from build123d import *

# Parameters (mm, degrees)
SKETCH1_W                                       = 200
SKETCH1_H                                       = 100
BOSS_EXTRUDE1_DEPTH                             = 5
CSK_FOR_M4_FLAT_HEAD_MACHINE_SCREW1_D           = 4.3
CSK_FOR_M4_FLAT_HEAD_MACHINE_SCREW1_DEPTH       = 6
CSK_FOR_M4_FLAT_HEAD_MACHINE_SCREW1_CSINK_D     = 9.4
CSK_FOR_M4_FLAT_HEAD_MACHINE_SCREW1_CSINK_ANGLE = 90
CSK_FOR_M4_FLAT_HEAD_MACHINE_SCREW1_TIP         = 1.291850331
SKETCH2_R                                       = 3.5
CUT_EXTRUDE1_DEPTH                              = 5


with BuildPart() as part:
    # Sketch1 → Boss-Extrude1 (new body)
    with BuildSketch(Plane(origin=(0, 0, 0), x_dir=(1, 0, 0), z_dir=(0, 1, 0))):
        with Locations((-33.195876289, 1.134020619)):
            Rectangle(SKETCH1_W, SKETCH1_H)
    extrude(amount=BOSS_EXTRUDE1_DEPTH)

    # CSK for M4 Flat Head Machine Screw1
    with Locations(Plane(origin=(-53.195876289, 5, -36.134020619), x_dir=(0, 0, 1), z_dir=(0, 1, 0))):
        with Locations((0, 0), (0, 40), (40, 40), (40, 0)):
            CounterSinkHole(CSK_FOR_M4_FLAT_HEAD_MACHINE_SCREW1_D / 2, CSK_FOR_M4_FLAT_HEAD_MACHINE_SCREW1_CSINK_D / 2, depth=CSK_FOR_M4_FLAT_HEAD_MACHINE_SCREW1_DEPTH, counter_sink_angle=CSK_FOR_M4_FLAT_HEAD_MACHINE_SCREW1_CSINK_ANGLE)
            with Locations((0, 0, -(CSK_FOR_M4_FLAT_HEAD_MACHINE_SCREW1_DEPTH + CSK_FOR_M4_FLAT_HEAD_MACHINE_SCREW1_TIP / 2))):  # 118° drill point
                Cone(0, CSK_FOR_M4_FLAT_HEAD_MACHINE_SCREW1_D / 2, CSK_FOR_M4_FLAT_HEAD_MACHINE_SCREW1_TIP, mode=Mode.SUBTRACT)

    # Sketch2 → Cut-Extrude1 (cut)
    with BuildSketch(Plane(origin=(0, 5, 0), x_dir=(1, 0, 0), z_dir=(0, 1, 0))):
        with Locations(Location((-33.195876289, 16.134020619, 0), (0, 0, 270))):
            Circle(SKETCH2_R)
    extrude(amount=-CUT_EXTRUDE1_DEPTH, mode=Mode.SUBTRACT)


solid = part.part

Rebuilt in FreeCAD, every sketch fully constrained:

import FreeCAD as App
import Part
import Sketcher
from FreeCAD import Vector
Q = App.Units.Quantity


def add_polygon(sketch, points):
    """Adds a closed chain of lines whose ends are joined by coincident constraints."""
    first, n = sketch.GeometryCount, len(points)
    for a, b in zip(points, points[1:] + points[:1]):
        sketch.addGeometry(Part.LineSegment(App.Vector(*a, 0), App.Vector(*b, 0)), False)
    for i in range(n):
        sketch.addConstraint(Sketcher.Constraint("Coincident", first + i, 2, first + (i + 1) % n, 1))

doc = App.newDocument("Part")
body = doc.addObject("PartDesign::Body", "Body")

# Sketch on XZ plane
sketch1 = doc.addObject("Sketcher::SketchObject", "Sketch")
body.addObject(sketch1)
sketch1.AttachmentSupport = (doc.XZ_Plane, [""])
sketch1.MapMode = "FlatFace"
add_polygon(sketch1, [(-133.195876, -51.134021), (-133.195876, 48.865979), (66.804124, 48.865979), (66.804124, -51.134021)])  # lines 0-3
sketch1.addConstraint([
    Sketcher.Constraint("Vertical", 0),
    Sketcher.Constraint("Horizontal", 1),
    Sketcher.Constraint("Vertical", 2),
    Sketcher.Constraint("Horizontal", 3),
    Sketcher.Constraint("DistanceX", 1, 1, 1, 2, Q("200 mm")),
    Sketcher.Constraint("DistanceY", 0, 1, 0, 2, Q("100 mm")),
    Sketcher.Constraint("DistanceY", -1, 1, 0, 2, Q("48.865979 mm")),
    Sketcher.Constraint("DistanceX", 0, 2, -1, 1, Q("133.195876 mm")),
])
pad1 = doc.addObject("PartDesign::Pad", "Pad")
body.addObject(pad1)
pad1.Profile = sketch1
pad1.Length = 5
pad1.Reversed = True

# Sketch on XZ plane
sketch2 = doc.addObject("Sketcher::SketchObject", "Sketch001")
body.addObject(sketch2)
sketch2.AttachmentSupport = (doc.XZ_Plane, [""])
sketch2.MapMode = "FlatFace"
sketch2.AttachmentOffset = App.Placement(Vector(0, 0, -5), App.Rotation())
sketch2.addGeometry([
    Part.Circle(Vector(-53.195876, -36.134021, 0), Vector(0, 0, 1), 2.15),
    Part.Circle(Vector(-13.195876, -36.134021, 0), Vector(0, 0, 1), 2.15),
    Part.Circle(Vector(-13.195876, 3.865979, 0), Vector(0, 0, 1), 2.15),
    Part.Circle(Vector(-53.195876, 3.865979, 0), Vector(0, 0, 1), 2.15),
], False)
sketch2.addConstraint([
    Sketcher.Constraint("Equal", 0, 1),
    Sketcher.Constraint("Equal", 1, 2),
    Sketcher.Constraint("Equal", 2, 3),
    Sketcher.Constraint("Horizontal", 0, 3, 1, 3),
    Sketcher.Constraint("Horizontal", 2, 3, 3, 3),
    Sketcher.Constraint("Vertical", 1, 3, 2, 3),
    Sketcher.Constraint("Vertical", 0, 3, 3, 3),
    Sketcher.Constraint("Diameter", 0, Q("4.3 mm")),
    Sketcher.Constraint("DistanceX", 0, 3, 1, 3, Q("40 mm")),
    Sketcher.Constraint("DistanceY", 1, 3, 2, 3, Q("40 mm")),
    Sketcher.Constraint("DistanceY", 0, 3, -1, 1, Q("36.134021 mm")),
    Sketcher.Constraint("DistanceX", 0, 3, -1, 1, Q("53.195876 mm")),
])
doc.recompute()
hole = doc.addObject("PartDesign::Hole", "Hole")
body.addObject(hole)
hole.Profile = sketch2
hole.ThreadType = "None"
hole.Diameter = 4.3
hole.DepthType = "Dimension"
hole.Depth = 6
hole.DrillPoint = "Angled"
hole.DrillPointAngle = 118
hole.HoleCutType = "Countersink"
hole.HoleCutDiameter = 9.4
hole.HoleCutCountersinkAngle = 90
hole.Reversed = True

# Sketch on XZ plane
sketch3 = doc.addObject("Sketcher::SketchObject", "Sketch002")
body.addObject(sketch3)
sketch3.AttachmentSupport = (doc.XZ_Plane, [""])
sketch3.MapMode = "FlatFace"
sketch3.AttachmentOffset = App.Placement(Vector(0, 0, -5), App.Rotation())
sketch3.addGeometry(Part.Circle(Vector(-33.195876, -16.134021, 0), Vector(0, 0, 1), 3.5), False)
sketch3.addConstraint([
    Sketcher.Constraint("Diameter", 0, Q("7 mm")),
    Sketcher.Constraint("DistanceY", 0, 3, -1, 1, Q("16.134021 mm")),
    Sketcher.Constraint("DistanceX", 0, 3, -1, 1, Q("33.195876 mm")),
])
pocket1 = doc.addObject("PartDesign::Pocket", "Pocket")
body.addObject(pocket1)
pocket1.Profile = sketch3
pocket1.Length = 5
pocket1.Reversed = True

doc.recompute()
